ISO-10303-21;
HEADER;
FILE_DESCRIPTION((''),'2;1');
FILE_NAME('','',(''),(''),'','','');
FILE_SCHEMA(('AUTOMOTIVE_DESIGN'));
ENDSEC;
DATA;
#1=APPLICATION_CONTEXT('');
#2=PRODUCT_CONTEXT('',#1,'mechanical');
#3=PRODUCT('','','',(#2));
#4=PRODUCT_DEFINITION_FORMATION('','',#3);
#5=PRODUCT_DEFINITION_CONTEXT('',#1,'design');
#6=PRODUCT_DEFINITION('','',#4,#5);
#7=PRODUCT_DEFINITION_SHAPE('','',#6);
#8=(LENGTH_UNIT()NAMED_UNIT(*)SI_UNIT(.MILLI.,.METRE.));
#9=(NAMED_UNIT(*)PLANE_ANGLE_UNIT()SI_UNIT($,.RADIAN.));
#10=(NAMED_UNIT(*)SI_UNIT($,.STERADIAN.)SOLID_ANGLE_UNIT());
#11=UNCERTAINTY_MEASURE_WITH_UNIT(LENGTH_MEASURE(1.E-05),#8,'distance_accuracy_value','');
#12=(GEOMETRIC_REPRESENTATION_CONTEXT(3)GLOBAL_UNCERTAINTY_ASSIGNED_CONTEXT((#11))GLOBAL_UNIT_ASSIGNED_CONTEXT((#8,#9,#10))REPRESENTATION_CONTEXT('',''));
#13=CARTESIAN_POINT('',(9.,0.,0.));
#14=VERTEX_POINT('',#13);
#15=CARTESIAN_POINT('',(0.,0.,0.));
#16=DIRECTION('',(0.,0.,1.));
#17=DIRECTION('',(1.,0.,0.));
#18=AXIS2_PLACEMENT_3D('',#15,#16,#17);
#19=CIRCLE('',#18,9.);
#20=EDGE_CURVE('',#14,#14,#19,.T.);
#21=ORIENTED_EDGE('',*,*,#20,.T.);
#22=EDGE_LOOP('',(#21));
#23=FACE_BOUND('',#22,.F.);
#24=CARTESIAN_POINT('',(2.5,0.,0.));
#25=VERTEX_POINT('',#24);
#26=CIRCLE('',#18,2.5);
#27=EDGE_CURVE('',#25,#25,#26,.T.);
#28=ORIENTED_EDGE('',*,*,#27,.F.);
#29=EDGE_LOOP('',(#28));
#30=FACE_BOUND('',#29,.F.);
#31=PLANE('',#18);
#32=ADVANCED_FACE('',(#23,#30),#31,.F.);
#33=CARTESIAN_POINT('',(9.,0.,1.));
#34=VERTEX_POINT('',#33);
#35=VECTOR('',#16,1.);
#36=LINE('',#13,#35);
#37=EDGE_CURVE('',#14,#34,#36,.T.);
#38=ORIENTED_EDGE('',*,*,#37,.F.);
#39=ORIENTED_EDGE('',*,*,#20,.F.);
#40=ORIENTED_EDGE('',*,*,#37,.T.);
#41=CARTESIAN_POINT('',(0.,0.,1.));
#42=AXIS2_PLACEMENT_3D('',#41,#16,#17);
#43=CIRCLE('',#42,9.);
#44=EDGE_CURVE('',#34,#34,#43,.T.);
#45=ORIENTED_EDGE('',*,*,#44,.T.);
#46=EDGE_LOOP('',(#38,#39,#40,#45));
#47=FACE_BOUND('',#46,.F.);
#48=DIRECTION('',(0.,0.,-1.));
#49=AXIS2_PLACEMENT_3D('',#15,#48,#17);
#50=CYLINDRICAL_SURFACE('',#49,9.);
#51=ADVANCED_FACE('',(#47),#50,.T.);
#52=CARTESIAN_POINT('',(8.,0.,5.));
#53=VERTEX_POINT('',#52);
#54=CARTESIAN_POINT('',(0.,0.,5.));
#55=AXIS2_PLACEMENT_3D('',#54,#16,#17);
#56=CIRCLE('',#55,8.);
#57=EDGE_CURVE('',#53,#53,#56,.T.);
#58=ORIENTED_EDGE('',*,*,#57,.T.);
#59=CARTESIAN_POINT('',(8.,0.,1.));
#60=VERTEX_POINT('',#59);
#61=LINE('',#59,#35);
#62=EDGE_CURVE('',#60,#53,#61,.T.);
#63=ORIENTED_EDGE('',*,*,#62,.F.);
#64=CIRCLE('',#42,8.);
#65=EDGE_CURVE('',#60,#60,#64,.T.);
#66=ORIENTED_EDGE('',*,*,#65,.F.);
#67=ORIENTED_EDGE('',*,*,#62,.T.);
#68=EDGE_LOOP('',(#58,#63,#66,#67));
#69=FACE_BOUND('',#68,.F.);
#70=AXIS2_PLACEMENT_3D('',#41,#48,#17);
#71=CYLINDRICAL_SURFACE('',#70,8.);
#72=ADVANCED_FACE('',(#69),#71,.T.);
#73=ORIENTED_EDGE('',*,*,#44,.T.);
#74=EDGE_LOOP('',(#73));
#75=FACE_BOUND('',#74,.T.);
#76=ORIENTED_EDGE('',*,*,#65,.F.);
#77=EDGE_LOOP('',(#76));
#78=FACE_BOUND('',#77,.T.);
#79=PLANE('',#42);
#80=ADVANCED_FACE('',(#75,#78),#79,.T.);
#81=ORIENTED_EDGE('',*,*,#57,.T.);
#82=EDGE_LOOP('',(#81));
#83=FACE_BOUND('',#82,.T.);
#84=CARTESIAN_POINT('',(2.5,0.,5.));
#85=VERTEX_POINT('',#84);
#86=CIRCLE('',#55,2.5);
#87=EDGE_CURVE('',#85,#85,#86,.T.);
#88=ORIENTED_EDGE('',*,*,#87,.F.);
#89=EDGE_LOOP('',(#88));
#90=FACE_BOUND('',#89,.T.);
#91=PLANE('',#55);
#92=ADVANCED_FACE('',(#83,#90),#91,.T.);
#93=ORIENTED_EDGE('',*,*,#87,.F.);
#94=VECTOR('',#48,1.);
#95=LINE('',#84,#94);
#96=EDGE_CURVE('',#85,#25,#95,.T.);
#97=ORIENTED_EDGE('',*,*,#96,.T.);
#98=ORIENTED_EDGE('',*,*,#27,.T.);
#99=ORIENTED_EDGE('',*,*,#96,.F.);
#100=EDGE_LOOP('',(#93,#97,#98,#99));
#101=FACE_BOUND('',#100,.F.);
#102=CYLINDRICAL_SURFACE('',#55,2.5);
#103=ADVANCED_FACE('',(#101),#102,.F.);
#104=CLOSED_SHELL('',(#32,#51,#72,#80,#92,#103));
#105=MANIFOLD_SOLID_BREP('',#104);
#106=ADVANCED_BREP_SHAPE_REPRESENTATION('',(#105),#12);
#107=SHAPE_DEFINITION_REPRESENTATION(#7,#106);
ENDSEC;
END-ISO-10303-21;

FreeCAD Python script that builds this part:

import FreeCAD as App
import Part
import Sketcher
from FreeCAD import Vector
Q = App.Units.Quantity

doc = App.newDocument("Part")
body = doc.addObject("PartDesign::Body", "Body")

sketch1 = body.newObject("Sketcher::SketchObject", "Sketch")
sketch1.AttachmentSupport = (doc.getObject("XY_Plane"), [""])
sketch1.MapMode = "FlatFace"
sketch1.addGeometry(Part.Circle(Vector(0, 0, 0), Vector(0, 0, 1), 9), False)
sketch1.addConstraint([
    Sketcher.Constraint("Coincident", 0, 3, -1, 1),
    Sketcher.Constraint("Diameter", 0, Q("18 mm")),
])
pad1 = body.newObject("PartDesign::Pad", "Pad")
pad1.Profile = sketch1
pad1.Length = 1

sketch2 = body.newObject("Sketcher::SketchObject", "Sketch001")
sketch2.AttachmentSupport = (doc.getObject("XY_Plane"), [""])
sketch2.MapMode = "FlatFace"
sketch2.AttachmentOffset = App.Placement(Vector(0, 0, 1), App.Rotation())
sketch2.addGeometry(Part.Circle(Vector(0, 0, 0), Vector(0, 0, 1), 8), False)
sketch2.addConstraint([
    Sketcher.Constraint("Coincident", 0, 3, -1, 1),
    Sketcher.Constraint("Diameter", 0, Q("16 mm")),
])
pad2 = body.newObject("PartDesign::Pad", "Pad001")
pad2.Profile = sketch2
pad2.Length = 4

sketch3 = body.newObject("Sketcher::SketchObject", "Sketch002")
sketch3.AttachmentSupport = (doc.getObject("XY_Plane"), [""])
sketch3.MapMode = "FlatFace"
sketch3.AttachmentOffset = App.Placement(Vector(0, 0, 5), App.Rotation())
sketch3.addGeometry(Part.Circle(Vector(0, 0, 0), Vector(0, 0, 1), 2.5), False)
sketch3.addConstraint([
    Sketcher.Constraint("Coincident", 0, 3, -1, 1),
    Sketcher.Constraint("Diameter", 0, Q("5 mm")),
])
pocket1 = body.newObject("PartDesign::Pocket", "Pocket")
pocket1.Profile = sketch3
pocket1.Type = "ThroughAll"

doc.recompute()
